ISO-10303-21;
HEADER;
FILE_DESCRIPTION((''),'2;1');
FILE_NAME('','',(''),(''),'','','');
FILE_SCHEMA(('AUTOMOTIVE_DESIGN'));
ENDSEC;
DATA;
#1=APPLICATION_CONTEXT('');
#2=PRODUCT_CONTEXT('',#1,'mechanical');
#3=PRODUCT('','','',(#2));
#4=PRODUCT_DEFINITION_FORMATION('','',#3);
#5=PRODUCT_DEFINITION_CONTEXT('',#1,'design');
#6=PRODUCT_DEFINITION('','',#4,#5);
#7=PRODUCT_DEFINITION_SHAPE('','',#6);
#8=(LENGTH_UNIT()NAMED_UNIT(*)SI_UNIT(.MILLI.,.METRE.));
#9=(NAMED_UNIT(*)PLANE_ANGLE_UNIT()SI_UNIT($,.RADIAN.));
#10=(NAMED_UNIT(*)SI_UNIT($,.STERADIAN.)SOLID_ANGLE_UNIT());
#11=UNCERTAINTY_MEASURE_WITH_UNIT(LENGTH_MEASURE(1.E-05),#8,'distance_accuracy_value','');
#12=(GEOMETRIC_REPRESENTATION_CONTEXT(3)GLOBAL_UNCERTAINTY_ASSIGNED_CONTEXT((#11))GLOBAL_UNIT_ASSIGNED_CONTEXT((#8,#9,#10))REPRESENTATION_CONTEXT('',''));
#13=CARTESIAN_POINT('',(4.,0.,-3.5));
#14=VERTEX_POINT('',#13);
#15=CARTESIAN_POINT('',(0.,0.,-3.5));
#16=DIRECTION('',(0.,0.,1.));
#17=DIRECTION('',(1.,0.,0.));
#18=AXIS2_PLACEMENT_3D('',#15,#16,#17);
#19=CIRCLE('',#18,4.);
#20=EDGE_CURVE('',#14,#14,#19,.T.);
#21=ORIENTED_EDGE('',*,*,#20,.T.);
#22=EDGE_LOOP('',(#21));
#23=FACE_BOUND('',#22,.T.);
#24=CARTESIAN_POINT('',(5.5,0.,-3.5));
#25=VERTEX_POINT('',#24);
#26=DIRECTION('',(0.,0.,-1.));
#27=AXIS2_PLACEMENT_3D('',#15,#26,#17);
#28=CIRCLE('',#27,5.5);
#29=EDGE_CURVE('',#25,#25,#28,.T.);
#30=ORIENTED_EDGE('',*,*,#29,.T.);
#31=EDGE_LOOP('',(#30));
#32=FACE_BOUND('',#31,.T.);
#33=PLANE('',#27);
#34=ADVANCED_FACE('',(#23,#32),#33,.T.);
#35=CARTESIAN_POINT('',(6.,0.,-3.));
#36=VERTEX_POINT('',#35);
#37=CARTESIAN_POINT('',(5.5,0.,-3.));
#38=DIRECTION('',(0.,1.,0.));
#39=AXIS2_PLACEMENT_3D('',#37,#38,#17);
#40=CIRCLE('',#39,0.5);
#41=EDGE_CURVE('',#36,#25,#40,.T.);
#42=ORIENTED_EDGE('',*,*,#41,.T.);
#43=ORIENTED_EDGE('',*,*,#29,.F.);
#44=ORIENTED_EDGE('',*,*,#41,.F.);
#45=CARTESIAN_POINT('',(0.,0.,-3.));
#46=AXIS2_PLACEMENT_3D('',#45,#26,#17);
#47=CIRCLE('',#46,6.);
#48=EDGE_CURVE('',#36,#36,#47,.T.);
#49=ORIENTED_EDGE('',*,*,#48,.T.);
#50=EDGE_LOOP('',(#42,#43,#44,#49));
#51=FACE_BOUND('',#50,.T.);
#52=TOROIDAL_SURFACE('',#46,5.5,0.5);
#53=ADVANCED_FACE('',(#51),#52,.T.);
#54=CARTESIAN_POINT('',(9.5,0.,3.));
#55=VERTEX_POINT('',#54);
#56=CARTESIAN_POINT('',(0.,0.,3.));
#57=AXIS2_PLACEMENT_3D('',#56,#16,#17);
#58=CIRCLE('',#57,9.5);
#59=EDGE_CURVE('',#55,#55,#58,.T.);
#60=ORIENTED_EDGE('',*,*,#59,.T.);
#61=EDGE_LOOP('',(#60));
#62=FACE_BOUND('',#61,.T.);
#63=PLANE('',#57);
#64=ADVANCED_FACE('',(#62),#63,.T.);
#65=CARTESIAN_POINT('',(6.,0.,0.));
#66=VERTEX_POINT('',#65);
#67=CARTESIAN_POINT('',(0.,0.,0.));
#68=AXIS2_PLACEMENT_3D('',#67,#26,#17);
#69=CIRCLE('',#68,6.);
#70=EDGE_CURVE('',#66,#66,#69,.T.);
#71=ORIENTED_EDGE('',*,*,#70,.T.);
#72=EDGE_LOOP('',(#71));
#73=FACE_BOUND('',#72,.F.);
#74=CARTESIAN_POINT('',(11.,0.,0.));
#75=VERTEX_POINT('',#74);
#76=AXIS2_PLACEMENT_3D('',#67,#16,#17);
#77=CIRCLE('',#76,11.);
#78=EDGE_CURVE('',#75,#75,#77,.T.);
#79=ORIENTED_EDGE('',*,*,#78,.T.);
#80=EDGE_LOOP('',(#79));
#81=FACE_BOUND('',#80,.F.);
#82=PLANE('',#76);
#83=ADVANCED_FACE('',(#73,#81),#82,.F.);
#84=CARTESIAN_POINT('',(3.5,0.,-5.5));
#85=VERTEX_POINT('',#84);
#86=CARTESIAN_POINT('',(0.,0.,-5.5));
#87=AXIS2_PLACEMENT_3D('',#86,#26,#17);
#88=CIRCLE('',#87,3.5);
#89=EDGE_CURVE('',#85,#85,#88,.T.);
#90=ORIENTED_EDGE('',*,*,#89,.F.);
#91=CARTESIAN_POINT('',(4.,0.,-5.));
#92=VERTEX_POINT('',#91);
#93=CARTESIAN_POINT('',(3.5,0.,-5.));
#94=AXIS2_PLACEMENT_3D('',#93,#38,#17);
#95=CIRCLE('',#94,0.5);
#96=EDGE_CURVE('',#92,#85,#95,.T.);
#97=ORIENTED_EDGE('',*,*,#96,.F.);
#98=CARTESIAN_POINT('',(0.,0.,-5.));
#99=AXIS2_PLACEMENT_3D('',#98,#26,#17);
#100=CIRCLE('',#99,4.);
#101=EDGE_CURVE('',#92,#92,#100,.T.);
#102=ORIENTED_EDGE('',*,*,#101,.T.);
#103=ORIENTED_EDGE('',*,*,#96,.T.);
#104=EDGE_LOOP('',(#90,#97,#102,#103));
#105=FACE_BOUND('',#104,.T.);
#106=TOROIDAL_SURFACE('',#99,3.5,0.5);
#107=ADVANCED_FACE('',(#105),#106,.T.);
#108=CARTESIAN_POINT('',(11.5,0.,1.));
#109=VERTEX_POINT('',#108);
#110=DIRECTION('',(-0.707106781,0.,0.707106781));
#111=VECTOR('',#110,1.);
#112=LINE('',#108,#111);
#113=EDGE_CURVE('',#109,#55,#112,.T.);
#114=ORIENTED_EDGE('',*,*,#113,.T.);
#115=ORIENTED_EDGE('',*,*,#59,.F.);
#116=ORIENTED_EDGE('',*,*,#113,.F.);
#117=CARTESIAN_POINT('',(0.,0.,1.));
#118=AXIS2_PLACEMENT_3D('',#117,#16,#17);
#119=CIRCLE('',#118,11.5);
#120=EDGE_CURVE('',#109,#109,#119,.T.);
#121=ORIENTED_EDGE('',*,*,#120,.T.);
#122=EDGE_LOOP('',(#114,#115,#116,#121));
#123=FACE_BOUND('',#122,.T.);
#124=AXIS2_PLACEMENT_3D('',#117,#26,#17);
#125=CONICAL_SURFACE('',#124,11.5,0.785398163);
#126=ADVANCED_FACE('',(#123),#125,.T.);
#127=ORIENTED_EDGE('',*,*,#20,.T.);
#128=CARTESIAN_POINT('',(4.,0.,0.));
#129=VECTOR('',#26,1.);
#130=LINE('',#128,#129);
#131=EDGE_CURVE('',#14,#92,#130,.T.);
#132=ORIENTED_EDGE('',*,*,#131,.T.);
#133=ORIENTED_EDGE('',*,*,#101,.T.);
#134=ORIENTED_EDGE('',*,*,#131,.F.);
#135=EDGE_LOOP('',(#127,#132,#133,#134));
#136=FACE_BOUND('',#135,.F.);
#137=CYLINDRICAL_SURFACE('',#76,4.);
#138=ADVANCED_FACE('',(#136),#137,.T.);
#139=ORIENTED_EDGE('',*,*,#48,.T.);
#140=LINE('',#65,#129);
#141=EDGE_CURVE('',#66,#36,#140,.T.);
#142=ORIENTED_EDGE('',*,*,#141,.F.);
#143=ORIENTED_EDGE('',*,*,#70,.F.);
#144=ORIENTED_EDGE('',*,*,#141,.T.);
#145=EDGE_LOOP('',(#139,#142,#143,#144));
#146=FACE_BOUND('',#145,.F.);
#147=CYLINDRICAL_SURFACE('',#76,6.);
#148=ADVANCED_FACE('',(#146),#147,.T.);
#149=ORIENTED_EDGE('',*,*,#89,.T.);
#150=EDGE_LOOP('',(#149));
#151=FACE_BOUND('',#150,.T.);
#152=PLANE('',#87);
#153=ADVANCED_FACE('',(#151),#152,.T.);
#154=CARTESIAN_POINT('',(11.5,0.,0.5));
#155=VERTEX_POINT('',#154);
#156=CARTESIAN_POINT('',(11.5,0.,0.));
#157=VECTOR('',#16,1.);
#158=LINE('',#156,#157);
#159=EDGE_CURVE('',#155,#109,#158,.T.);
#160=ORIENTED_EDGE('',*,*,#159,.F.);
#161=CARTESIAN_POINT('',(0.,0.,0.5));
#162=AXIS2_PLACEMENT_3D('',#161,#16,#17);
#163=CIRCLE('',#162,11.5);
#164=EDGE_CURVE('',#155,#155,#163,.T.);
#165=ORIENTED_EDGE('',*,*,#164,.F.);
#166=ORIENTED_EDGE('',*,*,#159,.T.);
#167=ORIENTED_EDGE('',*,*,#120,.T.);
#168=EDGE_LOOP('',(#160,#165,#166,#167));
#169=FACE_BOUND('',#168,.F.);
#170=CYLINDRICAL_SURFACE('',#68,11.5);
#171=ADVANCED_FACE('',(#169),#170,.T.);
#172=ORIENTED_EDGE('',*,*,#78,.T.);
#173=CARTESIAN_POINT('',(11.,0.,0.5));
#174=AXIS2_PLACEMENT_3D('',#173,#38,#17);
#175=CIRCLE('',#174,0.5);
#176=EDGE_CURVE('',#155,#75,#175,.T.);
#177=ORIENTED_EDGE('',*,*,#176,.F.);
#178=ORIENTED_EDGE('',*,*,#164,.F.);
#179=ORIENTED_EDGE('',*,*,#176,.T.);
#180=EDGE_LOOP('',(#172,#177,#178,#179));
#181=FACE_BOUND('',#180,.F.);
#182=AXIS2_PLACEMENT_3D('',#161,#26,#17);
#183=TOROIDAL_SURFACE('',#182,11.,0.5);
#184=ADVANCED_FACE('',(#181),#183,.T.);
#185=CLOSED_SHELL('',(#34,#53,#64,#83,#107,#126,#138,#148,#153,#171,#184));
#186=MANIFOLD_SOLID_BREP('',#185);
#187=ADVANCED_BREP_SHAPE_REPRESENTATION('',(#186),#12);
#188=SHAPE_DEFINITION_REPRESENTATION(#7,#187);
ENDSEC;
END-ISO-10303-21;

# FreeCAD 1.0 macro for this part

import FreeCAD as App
import Part
import Sketcher
from FreeCAD import Vector
Q = App.Units.Quantity


def edges_at(feature, points):
    """Names of the edges that pass closest to the given points."""
    edges = feature.Shape.Edges
    near = lambda p: min(range(len(edges)), key=lambda i: edges[i].distToShape(Part.Vertex(*p))[0])
    return sorted({f"Edge{near(p) + 1}" for p in points})

doc = App.newDocument("Part")
body = doc.addObject("PartDesign::Body", "Body")

# Sketch on XY plane
sketch1 = body.newObject("Sketcher::SketchObject", "Sketch")
sketch1.AttachmentSupport = (doc.getObject("XY_Plane"), [""])
sketch1.MapMode = "FlatFace"
sketch1.addGeometry(Part.Circle(Vector(0, 0, 0), Vector(0, 0, 1), 12), False)
sketch1.addConstraint(Sketcher.Constraint("Coincident", 0, 3, -1, 1))
sketch1.addConstraint(Sketcher.Constraint("Diameter", 0, Q("23 mm")))
pad1 = body.newObject("PartDesign::Pad", "Pad")
pad1.Profile = sketch1
pad1.Length = 3

# Sketch on XY plane
sketch2 = body.newObject("Sketcher::SketchObject", "Sketch001")
sketch2.AttachmentSupport = (doc.getObject("XY_Plane"), [""])
sketch2.MapMode = "FlatFace"
sketch2.addGeometry(Part.Circle(Vector(0, 0, 0), Vector(0, 0, 1), 4), False)
sketch2.addConstraint(Sketcher.Constraint("Coincident", 0, 3, -1, 1))
sketch2.addConstraint(Sketcher.Constraint("Diameter", 0, Q("8 mm")))
pad2 = body.newObject("PartDesign::Pad", "Pad001")
pad2.Profile = sketch2
pad2.Length = 5.5
pad2.Reversed = True

# Sketch on XY plane
sketch3 = body.newObject("Sketcher::SketchObject", "Sketch002")
sketch3.AttachmentSupport = (doc.getObject("XY_Plane"), [""])
sketch3.MapMode = "FlatFace"
sketch3.addGeometry(Part.Circle(Vector(0, 0, 0), Vector(0, 0, 1), 6), False)
sketch3.addConstraint(Sketcher.Constraint("Coincident", 0, 3, -1, 1))
sketch3.addConstraint(Sketcher.Constraint("Diameter", 0, Q("12 mm")))
pad3 = body.newObject("PartDesign::Pad", "Pad002")
pad3.Profile = sketch3
pad3.Length = 3.5
pad3.Reversed = True
doc.recompute()

chamfer = body.newObject("PartDesign::Chamfer", "Chamfer")
chamfer.Base = (pad3, edges_at(pad3, [(-11.5, 0, 3)]))
chamfer.Size = 2
doc.recompute()

fillet = body.newObject("PartDesign::Fillet", "Fillet")
fillet.Base = (chamfer, edges_at(chamfer, [(-6, 0, -3.5), (-4, 0, -5.5), (-11.5, 0, 0)]))
fillet.Radius = 0.5

doc.recompute()
